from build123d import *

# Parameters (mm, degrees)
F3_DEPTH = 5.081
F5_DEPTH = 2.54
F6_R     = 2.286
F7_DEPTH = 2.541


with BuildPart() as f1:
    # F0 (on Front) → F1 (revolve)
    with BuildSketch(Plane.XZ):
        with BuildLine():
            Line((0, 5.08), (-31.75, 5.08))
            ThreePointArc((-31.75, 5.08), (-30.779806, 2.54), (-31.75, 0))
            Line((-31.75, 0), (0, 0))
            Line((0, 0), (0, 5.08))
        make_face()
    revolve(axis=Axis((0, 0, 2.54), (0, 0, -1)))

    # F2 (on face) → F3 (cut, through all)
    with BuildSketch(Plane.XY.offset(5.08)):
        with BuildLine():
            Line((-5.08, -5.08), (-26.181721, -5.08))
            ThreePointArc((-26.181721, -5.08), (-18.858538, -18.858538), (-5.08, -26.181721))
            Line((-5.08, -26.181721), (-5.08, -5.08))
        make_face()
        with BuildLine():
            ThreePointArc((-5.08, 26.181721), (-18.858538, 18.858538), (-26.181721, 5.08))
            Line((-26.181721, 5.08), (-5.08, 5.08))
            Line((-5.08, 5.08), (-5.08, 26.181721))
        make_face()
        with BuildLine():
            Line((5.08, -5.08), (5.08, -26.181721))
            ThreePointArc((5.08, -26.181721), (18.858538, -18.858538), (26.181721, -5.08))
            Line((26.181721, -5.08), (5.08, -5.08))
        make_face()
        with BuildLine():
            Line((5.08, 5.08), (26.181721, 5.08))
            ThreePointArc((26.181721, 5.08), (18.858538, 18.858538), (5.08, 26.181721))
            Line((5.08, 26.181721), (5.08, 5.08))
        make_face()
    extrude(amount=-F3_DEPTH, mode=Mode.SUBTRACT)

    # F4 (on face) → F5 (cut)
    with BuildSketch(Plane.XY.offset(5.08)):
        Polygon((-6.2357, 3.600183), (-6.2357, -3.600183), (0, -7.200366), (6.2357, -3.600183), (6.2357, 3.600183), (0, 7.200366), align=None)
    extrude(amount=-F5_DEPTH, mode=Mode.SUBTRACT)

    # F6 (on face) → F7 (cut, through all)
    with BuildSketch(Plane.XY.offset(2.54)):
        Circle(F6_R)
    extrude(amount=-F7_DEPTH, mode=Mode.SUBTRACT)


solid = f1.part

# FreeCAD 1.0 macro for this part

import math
import FreeCAD as App
import Part
import Sketcher

V = App.Vector
Q = App.Units.Quantity


def add_polygon(sketch, points):
    """Adds a closed chain of lines whose ends are joined by coincident constraints."""
    first, n = sketch.GeometryCount, len(points)
    for a, b in zip(points, points[1:] + points[:1]):
        sketch.addGeometry(Part.LineSegment(App.Vector(*a, 0), App.Vector(*b, 0)), False)
    for i in range(n):
        sketch.addConstraint(Sketcher.Constraint("Coincident", first + i, 2, first + (i + 1) % n, 1))

doc = App.newDocument("Part")
params = doc.addObject("Spreadsheet::Sheet", "Params")
for row, (alias, value) in enumerate([
    ("sketch1_radius", "0.15 in"),
    ("sketch1_height", "0.2 in"),
    ("sketch1_width", "1.25 in"),
    ("revolution_angle", "360 deg"),
    ("sketch2_radius", "1.05 in"),
    ("pocket2_length", "0.1 in"),
    ("sketch4_diameter", "0.18 in"),
], start=1):
    params.set(f"A{row}", alias)
    params.set(f"B{row}", "=" + value)
    params.setAlias(f"B{row}", alias)

body = doc.addObject("PartDesign::Body", "Body")

sketch1 = doc.addObject("Sketcher::SketchObject", "Sketch")
body.addObject(sketch1)
sketch1.AttachmentSupport = (doc.XZ_Plane, [""])
sketch1.MapMode = "FlatFace"
sketch1.addGeometry(Part.LineSegment(V(0, 5.1, 0), V(-31.8, 5.1, 0)), False)
sketch1.addGeometry(Part.ArcOfCircle(Part.Circle(V(-34.6, 2.5, 0), V(0, 0, 1), 3.8), math.radians(-42), math.radians(42)), False)
sketch1.addGeometry(Part.LineSegment(V(-31.8, 0, 0), V(0, 0, 0)), False)
sketch1.addGeometry(Part.LineSegment(V(0, 0, 0), V(0, 5.1, 0)), False)
sketch1.addConstraint(Sketcher.Constraint("Coincident", 0, 2, 1, 2))
sketch1.addConstraint(Sketcher.Constraint("Coincident", 1, 1, 2, 1))
sketch1.addConstraint(Sketcher.Constraint("Coincident", 2, 2, 3, 1))
sketch1.addConstraint(Sketcher.Constraint("Coincident", 3, 2, 0, 1))
sketch1.addConstraint(Sketcher.Constraint("Horizontal", 0))
sketch1.addConstraint(Sketcher.Constraint("Horizontal", 2))
sketch1.addConstraint(Sketcher.Constraint("Vertical", 3))
sketch1.addConstraint(Sketcher.Constraint("Coincident", 2, 2, -1, 1))
sketch1.addConstraint(Sketcher.Constraint("Vertical", 0, 2, 1, 1))
sketch1.addConstraint(Sketcher.Constraint("Radius", 1, Q("0.15 in")))
sketch1.addConstraint(Sketcher.Constraint("DistanceY", 3, 1, 3, 2, Q("0.2 in")))
sketch1.addConstraint(Sketcher.Constraint("DistanceX", 0, 2, 0, 1, Q("1.25 in")))
sketch1.setExpression("Constraints[9]", "Params.sketch1_radius")
sketch1.setExpression("Constraints[10]", "Params.sketch1_height")
sketch1.setExpression("Constraints[11]", "Params.sketch1_width")
revolution = doc.addObject("PartDesign::Revolution", "Revolution")
body.addObject(revolution)
revolution.Profile = sketch1
revolution.ReferenceAxis = (sketch1, ["V_Axis"])
revolution.setExpression("Angle", "Params.revolution_angle")

sketch2 = doc.addObject("Sketcher::SketchObject", "Sketch001")
body.addObject(sketch2)
sketch2.AttachmentSupport = (doc.XY_Plane, [""])
sketch2.MapMode = "FlatFace"
sketch2.AttachmentOffset = App.Placement(V(0, 0, 0.2 * 25.4), App.Rotation())
sketch2.addGeometry(Part.LineSegment(V(-5, -5, 0), V(-26, -5, 0)), False)
sketch2.addGeometry(Part.ArcOfCircle(Part.Circle(V(0, 0, 0), V(0, 0, 1), 27), math.radians(-169), math.radians(-101)), False)
sketch2.addGeometry(Part.LineSegment(V(-5, -26, 0), V(-5, -5, 0)), False)
sketch2.addGeometry(Part.ArcOfCircle(Part.Circle(V(0, 0, 0), V(0, 0, 1), 27), math.radians(101), math.radians(169)), False)
sketch2.addGeometry(Part.LineSegment(V(-26, 5, 0), V(-5, 5, 0)), False)
sketch2.addGeometry(Part.LineSegment(V(-5, 5, 0), V(-5, 26, 0)), False)
sketch2.addGeometry(Part.LineSegment(V(5, -5, 0), V(5, -26, 0)), False)
sketch2.addGeometry(Part.ArcOfCircle(Part.Circle(V(0, 0, 0), V(0, 0, 1), 27), math.radians(-79), math.radians(-11)), False)
sketch2.addGeometry(Part.LineSegment(V(26, -5, 0), V(5, -5, 0)), False)
sketch2.addGeometry(Part.LineSegment(V(5, 5, 0), V(26, 5, 0)), False)
sketch2.addGeometry(Part.ArcOfCircle(Part.Circle(V(0, 0, 0), V(0, 0, 1), 27), math.radians(11), math.radians(79)), False)
sketch2.addGeometry(Part.LineSegment(V(5, 26, 0), V(5, 5, 0)), False)
sketch2.addConstraint(Sketcher.Constraint("Coincident", 0, 2, 1, 1))
sketch2.addConstraint(Sketcher.Constraint("Coincident", 1, 2, 2, 1))
sketch2.addConstraint(Sketcher.Constraint("Coincident", 2, 2, 0, 1))
sketch2.addConstraint(Sketcher.Constraint("Coincident", 3, 2, 4, 1))
sketch2.addConstraint(Sketcher.Constraint("Coincident", 4, 2, 5, 1))
sketch2.addConstraint(Sketcher.Constraint("Coincident", 5, 2, 3, 1))
sketch2.addConstraint(Sketcher.Constraint("Coincident", 6, 2, 7, 1))
sketch2.addConstraint(Sketcher.Constraint("Coincident", 7, 2, 8, 1))
sketch2.addConstraint(Sketcher.Constraint("Coincident", 8, 2, 6, 1))
sketch2.addConstraint(Sketcher.Constraint("Coincident", 9, 2, 10, 1))
sketch2.addConstraint(Sketcher.Constraint("Coincident", 10, 2, 11, 1))
sketch2.addConstraint(Sketcher.Constraint("Coincident", 11, 2, 9, 1))
sketch2.addConstraint(Sketcher.Constraint("Horizontal", 0))
sketch2.addConstraint(Sketcher.Constraint("Vertical", 2))
sketch2.addConstraint(Sketcher.Constraint("Horizontal", 4))
sketch2.addConstraint(Sketcher.Constraint("Vertical", 5))
sketch2.addConstraint(Sketcher.Constraint("Vertical", 6))
sketch2.addConstraint(Sketcher.Constraint("Horizontal", 8))
sketch2.addConstraint(Sketcher.Constraint("Horizontal", 9))
sketch2.addConstraint(Sketcher.Constraint("Vertical", 11))
sketch2.addConstraint(Sketcher.Constraint("Coincident", 1, 3, -1, 1))
sketch2.addConstraint(Sketcher.Constraint("Coincident", 3, 3, -1, 1))
sketch2.addConstraint(Sketcher.Constraint("Coincident", 7, 3, -1, 1))
sketch2.addConstraint(Sketcher.Constraint("Coincident", 10, 3, -1, 1))
sketch2.addConstraint(Sketcher.Constraint("Equal", 1, 3))
sketch2.addConstraint(Sketcher.Constraint("Equal", 3, 7))
sketch2.addConstraint(Sketcher.Constraint("Equal", 7, 10))
sketch2.addConstraint(Sketcher.Constraint("Symmetric", 4, 2, 8, 2, -1, 1))
sketch2.addConstraint(Sketcher.Constraint("Symmetric", 2, 2, 11, 2, -1, 1))
sketch2.addConstraint(Sketcher.Constraint("Symmetric", 2, 2, 8, 2, -2))
sketch2.addConstraint(Sketcher.Constraint("Equal", 9, 2))
sketch2.addConstraint(Sketcher.Constraint("Radius", 1, Q("1.05 in")))
sketch2.addConstraint(Sketcher.Constraint("DistanceY", 0, 2, -1, 1, Q("0.2 in")))
sketch2.setExpression("Constraints[31]", "Params.sketch2_radius")
pocket1 = doc.addObject("PartDesign::Pocket", "Pocket")
body.addObject(pocket1)
pocket1.Profile = sketch2
pocket1.Type = "ThroughAll"

sketch3 = doc.addObject("Sketcher::SketchObject", "Sketch002")
body.addObject(sketch3)
sketch3.AttachmentSupport = (doc.XY_Plane, [""])
sketch3.MapMode = "FlatFace"
sketch3.AttachmentOffset = App.Placement(V(0, 0, 0.2 * 25.4), App.Rotation())
add_polygon(sketch3, [(-6, 4), (-6, -4), (0, -7), (6, -4), (6, 4), (0, 7)])
sketch3.addConstraint(Sketcher.Constraint("Vertical", 0))
sketch3.addConstraint(Sketcher.Constraint("Vertical", 3))
sketch3.addConstraint(Sketcher.Constraint("Symmetric", 0, 2, 3, 2, -1, 1))
sketch3.addConstraint(Sketcher.Constraint("Symmetric", 1, 2, 4, 2, -1, 1))
sketch3.addConstraint(Sketcher.Constraint("PointOnObject", 1, 2, -2))
sketch3.addConstraint(Sketcher.Constraint("Parallel", 2, 5))
sketch3.addConstraint(Sketcher.Constraint("Horizontal", 0, 2, 2, 2))
sketch3.addConstraint(Sketcher.Constraint("Angle", 1, Q("-29.999999 deg")))
sketch3.addConstraint(Sketcher.Constraint("DistanceX", 0, 2, 2, 2, Q("0.491 in")))
sketch3.addConstraint(Sketcher.Constraint("DistanceY", 0, 2, 0, 1, Q("7.200366 mm")))
pocket2 = doc.addObject("PartDesign::Pocket", "Pocket001")
body.addObject(pocket2)
pocket2.Profile = sketch3
pocket2.setExpression("Length", "Params.pocket2_length")

sketch4 = doc.addObject("Sketcher::SketchObject", "Sketch003")
body.addObject(sketch4)
sketch4.AttachmentSupport = (doc.XY_Plane, [""])
sketch4.MapMode = "FlatFace"
sketch4.AttachmentOffset = App.Placement(V(0, 0, 0.1 * 25.4), App.Rotation())
sketch4.addGeometry(Part.Circle(V(0, 0, 0), V(0, 0, 1), 2.3), False)
sketch4.addConstraint(Sketcher.Constraint("Coincident", 0, 3, -1, 1))
sketch4.addConstraint(Sketcher.Constraint("Diameter", 0, Q("0.18 in")))
sketch4.setExpression("Constraints[1]", "Params.sketch4_diameter")
pocket3 = doc.addObject("PartDesign::Pocket", "Pocket002")
body.addObject(pocket3)
pocket3.Profile = sketch4
pocket3.Type = "ThroughAll"

doc.recompute()
